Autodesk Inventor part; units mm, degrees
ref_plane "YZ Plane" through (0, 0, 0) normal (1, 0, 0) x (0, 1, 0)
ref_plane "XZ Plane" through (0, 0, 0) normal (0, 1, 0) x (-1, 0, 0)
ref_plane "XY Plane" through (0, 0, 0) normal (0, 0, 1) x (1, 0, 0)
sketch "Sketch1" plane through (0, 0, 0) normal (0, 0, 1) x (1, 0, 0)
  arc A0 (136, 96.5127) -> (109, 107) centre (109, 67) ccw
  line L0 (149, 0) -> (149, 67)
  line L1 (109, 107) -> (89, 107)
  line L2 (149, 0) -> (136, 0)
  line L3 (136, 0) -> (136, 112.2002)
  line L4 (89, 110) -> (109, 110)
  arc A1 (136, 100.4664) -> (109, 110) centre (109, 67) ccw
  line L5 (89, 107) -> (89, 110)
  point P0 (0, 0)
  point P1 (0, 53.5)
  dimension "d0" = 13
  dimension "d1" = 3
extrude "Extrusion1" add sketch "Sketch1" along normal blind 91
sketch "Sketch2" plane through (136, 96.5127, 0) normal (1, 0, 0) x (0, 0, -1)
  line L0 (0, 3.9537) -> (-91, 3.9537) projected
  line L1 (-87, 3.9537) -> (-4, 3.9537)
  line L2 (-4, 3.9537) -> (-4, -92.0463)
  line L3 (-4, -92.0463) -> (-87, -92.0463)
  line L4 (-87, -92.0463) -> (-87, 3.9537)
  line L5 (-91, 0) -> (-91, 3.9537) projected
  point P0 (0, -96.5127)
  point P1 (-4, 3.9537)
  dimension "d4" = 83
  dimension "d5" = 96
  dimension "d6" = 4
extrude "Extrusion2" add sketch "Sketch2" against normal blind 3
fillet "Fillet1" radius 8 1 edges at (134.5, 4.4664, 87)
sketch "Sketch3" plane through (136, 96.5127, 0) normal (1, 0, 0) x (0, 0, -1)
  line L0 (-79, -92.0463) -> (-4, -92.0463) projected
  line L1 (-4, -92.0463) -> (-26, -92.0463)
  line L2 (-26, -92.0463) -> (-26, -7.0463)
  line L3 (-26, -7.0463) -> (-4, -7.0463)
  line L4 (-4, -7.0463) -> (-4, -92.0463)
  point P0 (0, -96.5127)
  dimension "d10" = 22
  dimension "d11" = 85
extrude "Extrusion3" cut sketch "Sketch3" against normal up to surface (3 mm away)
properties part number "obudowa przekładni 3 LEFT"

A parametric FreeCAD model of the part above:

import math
import FreeCAD as App
import Part
import Sketcher
from FreeCAD import Vector


def edges_at(feature, points):
    """Names of the edges that pass closest to the given points."""
    edges = feature.Shape.Edges
    near = lambda p: min(range(len(edges)), key=lambda i: edges[i].distToShape(Part.Vertex(*p))[0])
    return sorted({f"Edge{near(p) + 1}" for p in points})

doc = App.newDocument("Part")
params = doc.addObject("Spreadsheet::Sheet", "Params")
for row, (alias, value) in enumerate([
    ("sketch1_height", "3 mm"),
    ("sketch1_radius", "40 mm"),
    ("sketch1_width", "20 mm"),
    ("pad1_length", "91 mm"),
    ("sketch2_width", "96 mm"),
    ("sketch2_height", "83 mm"),
    ("pad2_length", "3 mm"),
    ("fillet_radius", "8 mm"),
    ("sketch3_width", "85 mm"),
    ("sketch3_height", "22 mm"),
    ("pocket1_length", "3 mm"),
], start=1):
    params.set(f"A{row}", alias)
    params.set(f"B{row}", "=" + value)
    params.setAlias(f"B{row}", alias)

body = doc.addObject("PartDesign::Body", "Body")

# Sketch on XY plane
sketch1 = body.newObject("Sketcher::SketchObject", "Sketch")
sketch1.AttachmentSupport = (doc.getObject("XY_Plane"), [""])
sketch1.MapMode = "FlatFace"
sketch1.addGeometry([
    Part.ArcOfCircle(Part.Circle(Vector(109, 67, 0), Vector(0, 0, 1), 39.999993), math.radians(47.545841), math.radians(90)),  # 0
    Part.LineSegment(Vector(136, 96.5127, 0), Vector(136, 100.4664, 0)),  # 1
    Part.ArcOfCircle(Part.Circle(Vector(109, 67, 0), Vector(0, 0, 1), 42.999999), math.radians(51.104128), math.radians(90)),  # 2
    Part.LineSegment(Vector(109, 110, 0), Vector(89, 110, 0)),  # 3
    Part.LineSegment(Vector(89, 110, 0), Vector(89, 107, 0)),  # 4
    Part.LineSegment(Vector(89, 107, 0), Vector(109, 107, 0)),  # 5
], False)
sketch1.addConstraint([
    Sketcher.Constraint("Coincident", 0, 1, 1, 1),
    Sketcher.Constraint("Coincident", 1, 2, 2, 1),
    Sketcher.Constraint("Tangent", 2, 2, 3, 1),
    Sketcher.Constraint("Coincident", 3, 2, 4, 1),
    Sketcher.Constraint("Coincident", 4, 2, 5, 1),
    Sketcher.Constraint("Tangent", 5, 2, 0, 2),
    Sketcher.Constraint("Vertical", 1),
    Sketcher.Constraint("Horizontal", 3),
    Sketcher.Constraint("Vertical", 4),
    Sketcher.Constraint("Horizontal", 5),
    Sketcher.Constraint("Coincident", 2, 3, 0, 3),
    Sketcher.Constraint("DistanceY", 4, 2, 4, 1, 3.0),
    Sketcher.Constraint("Radius", 0, 40.0),
    Sketcher.Constraint("DistanceX", 3, 2, 3, 1, 20.0),
    Sketcher.Constraint("DistanceX", -1, 1, 0, 3, 109.0),
    Sketcher.Constraint("DistanceY", -1, 1, 0, 3, 67.0),
    Sketcher.Constraint("DistanceX", -1, 1, 0, 1, 136.0),
])
sketch1.setExpression("Constraints[11]", "Params.sketch1_height")
sketch1.setExpression("Constraints[12]", "Params.sketch1_radius")
sketch1.setExpression("Constraints[13]", "Params.sketch1_width")
pad1 = body.newObject("PartDesign::Pad", "Pad")
pad1.Profile = sketch1
pad1.setExpression("Length", "Params.pad1_length")

# Sketch on YZ plane
sketch2 = body.newObject("Sketcher::SketchObject", "Sketch001")
sketch2.AttachmentSupport = (doc.getObject("YZ_Plane"), [""])
sketch2.MapMode = "FlatFace"
sketch2.AttachmentOffset = App.Placement(Vector(0, 0, 136), App.Rotation())
sketch2.addGeometry([
    Part.LineSegment(Vector(4.4664, 4, 0), Vector(100.4664, 4, 0)),
    Part.LineSegment(Vector(100.4664, 4, 0), Vector(100.4664, 87, 0)),
    Part.LineSegment(Vector(100.4664, 87, 0), Vector(4.4664, 87, 0)),
    Part.LineSegment(Vector(4.4664, 87, 0), Vector(4.4664, 4, 0)),
], False)
sketch2.addConstraint([
    Sketcher.Constraint("Coincident", 0, 2, 1, 1),
    Sketcher.Constraint("Coincident", 1, 2, 2, 1),
    Sketcher.Constraint("Coincident", 2, 2, 3, 1),
    Sketcher.Constraint("Coincident", 3, 2, 0, 1),
    Sketcher.Constraint("Horizontal", 0),
    Sketcher.Constraint("Vertical", 1),
    Sketcher.Constraint("Horizontal", 2),
    Sketcher.Constraint("Vertical", 3),
    Sketcher.Constraint("DistanceX", 0, 1, 0, 2, 96.0),
    Sketcher.Constraint("DistanceY", 1, 1, 1, 2, 83.0),
    Sketcher.Constraint("DistanceY", -1, 1, 0, 2, 4.0),
    Sketcher.Constraint("DistanceX", -1, 1, 0, 2, 100.4664),
])
sketch2.setExpression("Constraints[8]", "Params.sketch2_width")
sketch2.setExpression("Constraints[9]", "Params.sketch2_height")
pad2 = body.newObject("PartDesign::Pad", "Pad001")
pad2.Profile = sketch2
pad2.setExpression("Length", "Params.pad2_length")
pad2.Reversed = True
doc.recompute()

fillet = body.newObject("PartDesign::Fillet", "Fillet")
fillet.Base = (pad2, edges_at(pad2, [(134.5, 4.466, 87)]))
fillet.setExpression("Radius", "Params.fillet_radius")

# Sketch on YZ plane
sketch3 = body.newObject("Sketcher::SketchObject", "Sketch002")
sketch3.AttachmentSupport = (doc.getObject("YZ_Plane"), [""])
sketch3.MapMode = "FlatFace"
sketch3.AttachmentOffset = App.Placement(Vector(0, 0, 136), App.Rotation())
sketch3.addGeometry([
    Part.LineSegment(Vector(89.4664, 26, 0), Vector(4.4664, 26, 0)),
    Part.LineSegment(Vector(4.4664, 26, 0), Vector(4.4664, 4, 0)),
    Part.LineSegment(Vector(4.4664, 4, 0), Vector(89.4664, 4, 0)),
    Part.LineSegment(Vector(89.4664, 4, 0), Vector(89.4664, 26, 0)),
], False)
sketch3.addConstraint([
    Sketcher.Constraint("Coincident", 0, 2, 1, 1),
    Sketcher.Constraint("Coincident", 1, 2, 2, 1),
    Sketcher.Constraint("Coincident", 2, 2, 3, 1),
    Sketcher.Constraint("Coincident", 3, 2, 0, 1),
    Sketcher.Constraint("Horizontal", 0),
    Sketcher.Constraint("Vertical", 1),
    Sketcher.Constraint("Horizontal", 2),
    Sketcher.Constraint("Vertical", 3),
    Sketcher.Constraint("DistanceX", 0, 2, 0, 1, 85.0),
    Sketcher.Constraint("DistanceY", 1, 2, 1, 1, 22.0),
    Sketcher.Constraint("DistanceY", -1, 1, 0, 2, 26.0),
    Sketcher.Constraint("DistanceX", -1, 1, 0, 2, 4.4664),
])
sketch3.setExpression("Constraints[8]", "Params.sketch3_width")
sketch3.setExpression("Constraints[9]", "Params.sketch3_height")
pocket1 = body.newObject("PartDesign::Pocket", "Pocket")
pocket1.Profile = sketch3
pocket1.setExpression("Length", "Params.pocket1_length")

doc.recompute()
